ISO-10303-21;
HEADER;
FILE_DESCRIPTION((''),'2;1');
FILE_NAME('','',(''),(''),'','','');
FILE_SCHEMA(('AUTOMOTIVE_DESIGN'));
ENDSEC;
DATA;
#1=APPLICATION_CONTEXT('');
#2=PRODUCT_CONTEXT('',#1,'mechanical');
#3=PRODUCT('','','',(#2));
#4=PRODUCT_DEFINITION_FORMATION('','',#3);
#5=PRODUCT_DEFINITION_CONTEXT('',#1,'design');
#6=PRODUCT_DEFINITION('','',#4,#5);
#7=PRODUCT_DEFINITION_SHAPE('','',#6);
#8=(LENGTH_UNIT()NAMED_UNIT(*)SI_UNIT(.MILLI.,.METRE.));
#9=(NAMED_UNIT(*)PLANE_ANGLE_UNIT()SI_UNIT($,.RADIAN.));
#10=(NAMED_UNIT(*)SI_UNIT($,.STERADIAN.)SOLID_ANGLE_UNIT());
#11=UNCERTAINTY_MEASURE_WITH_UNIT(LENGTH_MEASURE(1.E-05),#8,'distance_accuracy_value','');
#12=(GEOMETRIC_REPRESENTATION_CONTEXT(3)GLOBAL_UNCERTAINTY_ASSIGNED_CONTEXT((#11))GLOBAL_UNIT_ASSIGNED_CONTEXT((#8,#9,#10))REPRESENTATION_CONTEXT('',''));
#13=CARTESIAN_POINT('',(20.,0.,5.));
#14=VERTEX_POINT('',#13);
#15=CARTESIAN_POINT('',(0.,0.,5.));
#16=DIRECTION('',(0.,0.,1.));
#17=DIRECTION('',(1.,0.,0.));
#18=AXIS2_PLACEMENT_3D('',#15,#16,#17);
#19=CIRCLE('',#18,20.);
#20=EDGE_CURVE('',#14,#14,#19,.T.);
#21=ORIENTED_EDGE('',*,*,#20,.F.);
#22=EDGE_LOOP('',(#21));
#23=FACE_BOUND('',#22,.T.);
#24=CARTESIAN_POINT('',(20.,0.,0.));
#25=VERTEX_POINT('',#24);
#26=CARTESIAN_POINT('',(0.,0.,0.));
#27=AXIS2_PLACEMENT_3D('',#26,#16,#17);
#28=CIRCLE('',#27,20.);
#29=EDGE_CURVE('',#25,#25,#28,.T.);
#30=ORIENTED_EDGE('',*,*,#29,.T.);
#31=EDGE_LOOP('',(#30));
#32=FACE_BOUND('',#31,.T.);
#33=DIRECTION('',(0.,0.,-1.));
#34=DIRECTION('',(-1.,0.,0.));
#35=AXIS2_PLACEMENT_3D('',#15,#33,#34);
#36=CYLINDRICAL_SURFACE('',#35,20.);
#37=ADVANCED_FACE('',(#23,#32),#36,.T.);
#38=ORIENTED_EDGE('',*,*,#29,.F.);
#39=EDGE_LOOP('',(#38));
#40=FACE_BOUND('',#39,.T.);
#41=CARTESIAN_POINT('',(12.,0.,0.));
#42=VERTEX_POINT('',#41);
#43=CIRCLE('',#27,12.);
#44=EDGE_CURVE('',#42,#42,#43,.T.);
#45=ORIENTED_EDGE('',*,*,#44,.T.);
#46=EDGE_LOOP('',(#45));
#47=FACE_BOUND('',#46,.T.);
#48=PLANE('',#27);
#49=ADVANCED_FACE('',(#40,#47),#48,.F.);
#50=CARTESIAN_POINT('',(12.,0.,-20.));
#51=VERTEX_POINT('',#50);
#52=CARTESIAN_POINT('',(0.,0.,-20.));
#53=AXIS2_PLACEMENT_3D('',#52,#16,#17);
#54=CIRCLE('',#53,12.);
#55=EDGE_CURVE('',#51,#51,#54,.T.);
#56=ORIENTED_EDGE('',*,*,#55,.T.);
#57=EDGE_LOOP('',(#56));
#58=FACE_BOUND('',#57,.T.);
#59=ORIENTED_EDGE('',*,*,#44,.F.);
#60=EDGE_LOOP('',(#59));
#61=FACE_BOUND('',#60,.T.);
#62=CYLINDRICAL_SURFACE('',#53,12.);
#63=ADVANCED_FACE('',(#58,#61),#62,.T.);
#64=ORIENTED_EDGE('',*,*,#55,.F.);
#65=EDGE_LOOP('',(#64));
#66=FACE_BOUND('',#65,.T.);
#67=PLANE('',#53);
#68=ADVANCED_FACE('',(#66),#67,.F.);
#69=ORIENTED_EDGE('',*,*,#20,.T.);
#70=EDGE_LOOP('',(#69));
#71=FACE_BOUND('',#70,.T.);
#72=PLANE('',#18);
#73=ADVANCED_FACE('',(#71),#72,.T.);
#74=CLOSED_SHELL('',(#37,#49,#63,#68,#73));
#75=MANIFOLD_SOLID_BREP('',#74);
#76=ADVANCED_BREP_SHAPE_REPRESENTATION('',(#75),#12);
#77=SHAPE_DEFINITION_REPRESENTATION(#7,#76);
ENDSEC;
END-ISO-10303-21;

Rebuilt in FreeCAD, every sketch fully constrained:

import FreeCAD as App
import Part
import Sketcher
from FreeCAD import Vector
Q = App.Units.Quantity

doc = App.newDocument("Part")
params = doc.addObject("Spreadsheet::Sheet", "Params")
for row, (alias, value) in enumerate([
    ("sketch1_diameter", "40 mm"),
    ("sketch1_diameter2", "24 mm"),
    ("pad1_length", "5 mm"),
    ("sketch2_diameter", "24 mm"),
    ("pad2_length", "25 mm"),
], start=1):
    params.set(f"A{row}", alias)
    params.set(f"B{row}", "=" + value)
    params.setAlias(f"B{row}", alias)

body = doc.addObject("PartDesign::Body", "Body")

sketch1 = body.newObject("Sketcher::SketchObject", "Sketch")
sketch1.AttachmentSupport = (doc.getObject("XY_Plane"), [""])
sketch1.MapMode = "FlatFace"
sketch1.addGeometry([
    Part.Circle(Vector(0, 0, 0), Vector(0, 0, 1), 20),
    Part.Circle(Vector(0, 0, 0), Vector(0, 0, 1), 12),
], False)
sketch1.addConstraint([
    Sketcher.Constraint("Coincident", 0, 3, -1, 1),
    Sketcher.Constraint("Coincident", 1, 3, -1, 1),
    Sketcher.Constraint("Diameter", 0, Q("40 mm")),
    Sketcher.Constraint("Diameter", 1, Q("24 mm")),
])
sketch1.setExpression("Constraints[2]", "Params.sketch1_diameter")
sketch1.setExpression("Constraints[3]", "Params.sketch1_diameter2")
pad1 = body.newObject("PartDesign::Pad", "Pad")
pad1.Profile = sketch1
pad1.setExpression("Length", "Params.pad1_length")

sketch2 = body.newObject("Sketcher::SketchObject", "Sketch001")
sketch2.AttachmentSupport = (doc.getObject("XY_Plane"), [""])
sketch2.MapMode = "FlatFace"
sketch2.AttachmentOffset = App.Placement(Vector(0, 0, -20), App.Rotation())
sketch2.addGeometry(Part.Circle(Vector(0, 0, 0), Vector(0, 0, 1), 12), False)
sketch2.addConstraint([
    Sketcher.Constraint("Coincident", 0, 3, -1, 1),
    Sketcher.Constraint("Diameter", 0, Q("24 mm")),
])
sketch2.setExpression("Constraints[1]", "Params.sketch2_diameter")
pad2 = body.newObject("PartDesign::Pad", "Pad001")
pad2.Profile = sketch2
pad2.setExpression("Length", "Params.pad2_length")

doc.recompute()
